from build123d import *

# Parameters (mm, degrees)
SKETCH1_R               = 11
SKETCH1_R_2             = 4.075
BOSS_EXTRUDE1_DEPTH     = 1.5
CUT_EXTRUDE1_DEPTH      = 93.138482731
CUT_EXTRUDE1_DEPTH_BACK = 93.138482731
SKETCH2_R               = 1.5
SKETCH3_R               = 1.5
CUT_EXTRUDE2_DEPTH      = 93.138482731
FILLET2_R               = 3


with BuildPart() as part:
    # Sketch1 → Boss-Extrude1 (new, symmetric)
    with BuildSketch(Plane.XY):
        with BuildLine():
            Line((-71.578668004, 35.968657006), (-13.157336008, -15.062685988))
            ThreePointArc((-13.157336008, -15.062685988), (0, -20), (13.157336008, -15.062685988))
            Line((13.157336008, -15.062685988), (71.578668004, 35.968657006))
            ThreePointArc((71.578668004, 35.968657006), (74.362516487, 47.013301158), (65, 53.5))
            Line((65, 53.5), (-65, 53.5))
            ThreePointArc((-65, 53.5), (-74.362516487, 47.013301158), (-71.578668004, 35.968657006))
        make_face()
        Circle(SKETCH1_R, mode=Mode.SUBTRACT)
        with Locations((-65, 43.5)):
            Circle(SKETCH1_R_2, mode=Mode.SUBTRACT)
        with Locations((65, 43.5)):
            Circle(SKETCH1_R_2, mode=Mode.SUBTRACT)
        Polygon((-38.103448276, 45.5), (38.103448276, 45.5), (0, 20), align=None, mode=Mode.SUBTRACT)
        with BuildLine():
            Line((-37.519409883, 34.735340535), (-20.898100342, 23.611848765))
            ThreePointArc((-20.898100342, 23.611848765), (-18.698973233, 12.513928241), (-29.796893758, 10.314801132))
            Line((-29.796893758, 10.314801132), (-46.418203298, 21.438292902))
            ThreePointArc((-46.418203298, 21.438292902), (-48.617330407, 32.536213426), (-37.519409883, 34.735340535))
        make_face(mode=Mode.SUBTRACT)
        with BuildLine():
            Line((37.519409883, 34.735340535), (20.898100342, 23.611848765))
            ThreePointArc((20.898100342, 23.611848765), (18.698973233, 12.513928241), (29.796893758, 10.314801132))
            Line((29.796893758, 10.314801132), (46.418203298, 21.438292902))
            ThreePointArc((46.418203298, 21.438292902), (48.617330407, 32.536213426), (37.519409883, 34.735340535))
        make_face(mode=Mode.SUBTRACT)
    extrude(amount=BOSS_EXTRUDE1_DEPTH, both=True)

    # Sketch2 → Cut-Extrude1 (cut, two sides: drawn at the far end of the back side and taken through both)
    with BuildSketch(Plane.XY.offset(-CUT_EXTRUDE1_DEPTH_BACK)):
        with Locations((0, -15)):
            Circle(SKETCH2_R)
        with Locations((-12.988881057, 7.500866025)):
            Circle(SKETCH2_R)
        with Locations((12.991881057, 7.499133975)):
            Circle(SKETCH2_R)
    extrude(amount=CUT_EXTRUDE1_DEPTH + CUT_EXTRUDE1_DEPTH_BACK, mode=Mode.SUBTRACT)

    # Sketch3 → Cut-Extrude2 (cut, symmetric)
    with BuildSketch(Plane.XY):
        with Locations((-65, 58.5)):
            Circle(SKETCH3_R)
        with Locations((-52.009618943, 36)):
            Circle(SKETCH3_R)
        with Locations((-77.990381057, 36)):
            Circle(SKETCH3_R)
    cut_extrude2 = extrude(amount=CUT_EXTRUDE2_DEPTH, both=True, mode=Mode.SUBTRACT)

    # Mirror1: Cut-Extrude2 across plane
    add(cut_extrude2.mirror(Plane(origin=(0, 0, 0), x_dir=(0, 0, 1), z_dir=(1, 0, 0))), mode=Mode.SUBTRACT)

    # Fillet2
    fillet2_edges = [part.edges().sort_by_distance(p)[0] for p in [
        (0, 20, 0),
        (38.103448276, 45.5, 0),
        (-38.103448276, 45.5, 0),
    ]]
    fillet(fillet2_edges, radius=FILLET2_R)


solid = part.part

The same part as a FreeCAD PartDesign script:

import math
import FreeCAD as App
import Part
import Sketcher
from FreeCAD import Vector
Q = App.Units.Quantity


def edges_at(feature, points):
    """Names of the edges that pass closest to the given points."""
    edges = feature.Shape.Edges
    near = lambda p: min(range(len(edges)), key=lambda i: edges[i].distToShape(Part.Vertex(*p))[0])
    return sorted({f"Edge{near(p) + 1}" for p in points})

doc = App.newDocument("Part")
body = doc.addObject("PartDesign::Body", "Body")

# Sketch on XY plane
sketch1 = body.newObject("Sketcher::SketchObject", "Sketch")
sketch1.AttachmentSupport = (doc.getObject("XY_Plane"), [""])
sketch1.MapMode = "FlatFace"
sketch1.addGeometry([
    Part.LineSegment(Vector(-71.6, 36, 0), Vector(-13.2, -15.1, 0)),  # 0
    Part.ArcOfCircle(Part.Circle(Vector(0, 0, 0), Vector(0, 0, 1), 20), math.radians(-131), math.radians(-49)),  # 1
    Part.LineSegment(Vector(13.2, -15.1, 0), Vector(71.6, 36, 0)),  # 2
    Part.ArcOfCircle(Part.Circle(Vector(65, 43.5, 0), Vector(0, 0, 1), 10), math.radians(-49), math.radians(90)),  # 3
    Part.LineSegment(Vector(65, 53.5, 0), Vector(-65, 53.5, 0)),  # 4
    Part.ArcOfCircle(Part.Circle(Vector(-65, 43.5, 0), Vector(0, 0, 1), 10), math.radians(90), math.radians(229)),  # 5
    Part.Circle(Vector(0, 0, 0), Vector(0, 0, 1), 11),  # 6
    Part.ArcOfCircle(Part.Circle(Vector(-42, 28.1, 0), Vector(0, 0, 1), 8), math.radians(56), math.radians(236)),  # 7
    Part.LineSegment(Vector(-37.5, 34.7, 0), Vector(-20.9, 23.6, 0)),  # 8
    Part.ArcOfCircle(Part.Circle(Vector(-25.3, 17, 0), Vector(0, 0, 1), 8), math.radians(-124), math.radians(56)),  # 9
    Part.LineSegment(Vector(-29.8, 10.3, 0), Vector(-46.4, 21.4, 0)),  # 10
    Part.Circle(Vector(-65, 43.5, 0), Vector(0, 0, 1), 4.1),  # 11
    Part.LineSegment(Vector(20.9, 23.6, 0), Vector(37.5, 34.7, 0)),  # 12
    Part.ArcOfCircle(Part.Circle(Vector(42, 28.1, 0), Vector(0, 0, 1), 8), math.radians(-56), math.radians(124)),  # 13
    Part.LineSegment(Vector(46.4, 21.4, 0), Vector(29.8, 10.3, 0)),  # 14
    Part.ArcOfCircle(Part.Circle(Vector(25.3, 17, 0), Vector(0, 0, 1), 8), math.radians(124), math.radians(304)),  # 15
    Part.LineSegment(Vector(0, 20, 0), Vector(-38.1, 45.5, 0)),  # 16
    Part.LineSegment(Vector(-38.1, 45.5, 0), Vector(38.1, 45.5, 0)),  # 17
    Part.LineSegment(Vector(38.1, 45.5, 0), Vector(0, 20, 0)),  # 18
    Part.Circle(Vector(65, 43.5, 0), Vector(0, 0, 1), 4.1),  # 19
], False)
sketch1.addConstraint([
    Sketcher.Constraint("Tangent", 0, 2, 1, 1),
    Sketcher.Constraint("Tangent", 1, 2, 2, 1),
    Sketcher.Constraint("Tangent", 2, 2, 3, 1),
    Sketcher.Constraint("Tangent", 3, 2, 4, 1),
    Sketcher.Constraint("Tangent", 4, 2, 5, 1),
    Sketcher.Constraint("Tangent", 5, 2, 0, 1),
    Sketcher.Constraint("Tangent", 7, 1, 8, 1),
    Sketcher.Constraint("Tangent", 8, 2, 9, 2),
    Sketcher.Constraint("Tangent", 9, 1, 10, 1),
    Sketcher.Constraint("Tangent", 10, 2, 7, 2),
    Sketcher.Constraint("Tangent", 12, 2, 13, 2),
    Sketcher.Constraint("Tangent", 13, 1, 14, 1),
    Sketcher.Constraint("Tangent", 14, 2, 15, 2),
    Sketcher.Constraint("Tangent", 15, 1, 12, 1),
    Sketcher.Constraint("Coincident", 16, 2, 17, 1),
    Sketcher.Constraint("Coincident", 17, 2, 18, 1),
    Sketcher.Constraint("Coincident", 18, 2, 16, 1),
    Sketcher.Constraint("Horizontal", 4),
    Sketcher.Constraint("Horizontal", 17),
    Sketcher.Constraint("Coincident", 1, 3, -1, 1),
    Sketcher.Constraint("Coincident", 6, 3, -1, 1),
    Sketcher.Constraint("Coincident", 11, 3, 5, 3),
    Sketcher.Constraint("Coincident", 19, 3, 3, 3),
    Sketcher.Constraint("Equal", 3, 5),
    Sketcher.Constraint("Equal", 7, 9),
    Sketcher.Constraint("Equal", 9, 13),
    Sketcher.Constraint("Equal", 13, 15),
    Sketcher.Constraint("Equal", 11, 19),
    Sketcher.Constraint("Symmetric", 7, 3, 13, 3, -2),
    Sketcher.Constraint("Symmetric", 9, 3, 15, 3, -2),
    Sketcher.Constraint("PointOnObject", 18, 2, -2),
    Sketcher.Constraint("Parallel", 10, 16),
    Sketcher.Constraint("Parallel", 14, 18),
    Sketcher.Constraint("Horizontal", 0, 2, 1, 2),
    Sketcher.Constraint("Diameter", 6, Q("22 mm")),
    Sketcher.Constraint("Radius", 1, Q("20 mm")),
    Sketcher.Constraint("Radius", 3, Q("10 mm")),
    Sketcher.Constraint("Radius", 7, Q("8 mm")),
    Sketcher.Constraint("Diameter", 11, Q("8.15 mm")),
    Sketcher.Constraint("DistanceX", 4, 2, 4, 1, Q("130 mm")),
    Sketcher.Constraint("Distance", 8, Q("20 mm")),
    Sketcher.Constraint("DistanceY", -1, 1, 18, 2, Q("20 mm")),
    Sketcher.Constraint("DistanceY", 5, 3, 16, 2, Q("2 mm")),
    Sketcher.Constraint("DistanceY", -1, 1, 3, 3, Q("43.5 mm")),
    Sketcher.Constraint("DistanceX", 8, 2, -1, 1, Q("20.8981 mm")),
    Sketcher.Constraint("DistanceY", -1, 1, 9, 1, Q("10.314801 mm")),
    Sketcher.Constraint("DistanceX", 17, 1, 17, 2, Q("76.206897 mm")),
])
pad1 = body.newObject("PartDesign::Pad", "Pad")
pad1.Profile = sketch1
pad1.Length = 3
pad1.Midplane = True

# Sketch on XY plane
sketch2 = body.newObject("Sketcher::SketchObject", "Sketch001")
sketch2.AttachmentSupport = (doc.getObject("XY_Plane"), [""])
sketch2.MapMode = "FlatFace"
sketch2.addGeometry([
    Part.Circle(Vector(0, -15, 0), Vector(0, 0, 1), 1.5),
    Part.Circle(Vector(-13, 7.5, 0), Vector(0, 0, 1), 1.5),
    Part.Circle(Vector(13, 7.5, 0), Vector(0, 0, 1), 1.5),
], False)
sketch2.addConstraint([
    Sketcher.Constraint("Equal", 0, 1),
    Sketcher.Constraint("Equal", 1, 2),
    Sketcher.Constraint("PointOnObject", 0, 3, -2),
    Sketcher.Constraint("Diameter", 0, Q("3 mm")),
    Sketcher.Constraint("DistanceY", 0, 3, -1, 1, Q("15 mm")),
    Sketcher.Constraint("DistanceX", 1, 3, -1, 1, Q("12.988881 mm")),
    Sketcher.Constraint("DistanceX", -1, 1, 2, 3, Q("12.991881 mm")),
    Sketcher.Constraint("DistanceY", -1, 1, 1, 3, Q("7.500866 mm")),
    Sketcher.Constraint("DistanceY", -1, 1, 2, 3, Q("7.499134 mm")),
])
pocket1 = body.newObject("PartDesign::Pocket", "Pocket")
pocket1.Profile = sketch2
pocket1.Type = "ThroughAll"
pocket1.Midplane = True

# Sketch on XY plane
sketch3 = body.newObject("Sketcher::SketchObject", "Sketch002")
sketch3.AttachmentSupport = (doc.getObject("XY_Plane"), [""])
sketch3.MapMode = "FlatFace"
sketch3.addGeometry([
    Part.Circle(Vector(-65, 58.5, 0), Vector(0, 0, 1), 1.5),
    Part.Circle(Vector(-52, 36, 0), Vector(0, 0, 1), 1.5),
    Part.Circle(Vector(-78, 36, 0), Vector(0, 0, 1), 1.5),
], False)
sketch3.addConstraint([
    Sketcher.Constraint("Equal", 0, 1),
    Sketcher.Constraint("Equal", 1, 2),
    Sketcher.Constraint("Horizontal", 1, 3, 2, 3),
    Sketcher.Constraint("Diameter", 0, Q("3 mm")),
    Sketcher.Constraint("DistanceX", 0, 3, -1, 1, Q("65 mm")),
    Sketcher.Constraint("DistanceY", -1, 1, 1, 3, Q("36 mm")),
    Sketcher.Constraint("DistanceY", -1, 1, 0, 3, Q("58.5 mm")),
    Sketcher.Constraint("DistanceX", 1, 3, -1, 1, Q("52.009619 mm")),
    Sketcher.Constraint("DistanceX", 2, 3, -1, 1, Q("77.990381 mm")),
])
pocket2 = body.newObject("PartDesign::Pocket", "Pocket001")
pocket2.Profile = sketch3
pocket2.Length = 186.276965
pocket2.Midplane = True
doc.recompute()

mirrored = body.newObject("PartDesign::Mirrored", "Mirrored")
mirrored.Originals = [pocket2]
mirrored.MirrorPlane = (doc.getObject("YZ_Plane"), [""])
body.Tip = mirrored
doc.recompute()

fillet = body.newObject("PartDesign::Fillet", "Fillet")
fillet.Base = (mirrored, edges_at(mirrored, [(0, 20, 0), (38.103, 45.5, 0), (-38.103, 45.5, 0)]))
fillet.Radius = 3

doc.recompute()
